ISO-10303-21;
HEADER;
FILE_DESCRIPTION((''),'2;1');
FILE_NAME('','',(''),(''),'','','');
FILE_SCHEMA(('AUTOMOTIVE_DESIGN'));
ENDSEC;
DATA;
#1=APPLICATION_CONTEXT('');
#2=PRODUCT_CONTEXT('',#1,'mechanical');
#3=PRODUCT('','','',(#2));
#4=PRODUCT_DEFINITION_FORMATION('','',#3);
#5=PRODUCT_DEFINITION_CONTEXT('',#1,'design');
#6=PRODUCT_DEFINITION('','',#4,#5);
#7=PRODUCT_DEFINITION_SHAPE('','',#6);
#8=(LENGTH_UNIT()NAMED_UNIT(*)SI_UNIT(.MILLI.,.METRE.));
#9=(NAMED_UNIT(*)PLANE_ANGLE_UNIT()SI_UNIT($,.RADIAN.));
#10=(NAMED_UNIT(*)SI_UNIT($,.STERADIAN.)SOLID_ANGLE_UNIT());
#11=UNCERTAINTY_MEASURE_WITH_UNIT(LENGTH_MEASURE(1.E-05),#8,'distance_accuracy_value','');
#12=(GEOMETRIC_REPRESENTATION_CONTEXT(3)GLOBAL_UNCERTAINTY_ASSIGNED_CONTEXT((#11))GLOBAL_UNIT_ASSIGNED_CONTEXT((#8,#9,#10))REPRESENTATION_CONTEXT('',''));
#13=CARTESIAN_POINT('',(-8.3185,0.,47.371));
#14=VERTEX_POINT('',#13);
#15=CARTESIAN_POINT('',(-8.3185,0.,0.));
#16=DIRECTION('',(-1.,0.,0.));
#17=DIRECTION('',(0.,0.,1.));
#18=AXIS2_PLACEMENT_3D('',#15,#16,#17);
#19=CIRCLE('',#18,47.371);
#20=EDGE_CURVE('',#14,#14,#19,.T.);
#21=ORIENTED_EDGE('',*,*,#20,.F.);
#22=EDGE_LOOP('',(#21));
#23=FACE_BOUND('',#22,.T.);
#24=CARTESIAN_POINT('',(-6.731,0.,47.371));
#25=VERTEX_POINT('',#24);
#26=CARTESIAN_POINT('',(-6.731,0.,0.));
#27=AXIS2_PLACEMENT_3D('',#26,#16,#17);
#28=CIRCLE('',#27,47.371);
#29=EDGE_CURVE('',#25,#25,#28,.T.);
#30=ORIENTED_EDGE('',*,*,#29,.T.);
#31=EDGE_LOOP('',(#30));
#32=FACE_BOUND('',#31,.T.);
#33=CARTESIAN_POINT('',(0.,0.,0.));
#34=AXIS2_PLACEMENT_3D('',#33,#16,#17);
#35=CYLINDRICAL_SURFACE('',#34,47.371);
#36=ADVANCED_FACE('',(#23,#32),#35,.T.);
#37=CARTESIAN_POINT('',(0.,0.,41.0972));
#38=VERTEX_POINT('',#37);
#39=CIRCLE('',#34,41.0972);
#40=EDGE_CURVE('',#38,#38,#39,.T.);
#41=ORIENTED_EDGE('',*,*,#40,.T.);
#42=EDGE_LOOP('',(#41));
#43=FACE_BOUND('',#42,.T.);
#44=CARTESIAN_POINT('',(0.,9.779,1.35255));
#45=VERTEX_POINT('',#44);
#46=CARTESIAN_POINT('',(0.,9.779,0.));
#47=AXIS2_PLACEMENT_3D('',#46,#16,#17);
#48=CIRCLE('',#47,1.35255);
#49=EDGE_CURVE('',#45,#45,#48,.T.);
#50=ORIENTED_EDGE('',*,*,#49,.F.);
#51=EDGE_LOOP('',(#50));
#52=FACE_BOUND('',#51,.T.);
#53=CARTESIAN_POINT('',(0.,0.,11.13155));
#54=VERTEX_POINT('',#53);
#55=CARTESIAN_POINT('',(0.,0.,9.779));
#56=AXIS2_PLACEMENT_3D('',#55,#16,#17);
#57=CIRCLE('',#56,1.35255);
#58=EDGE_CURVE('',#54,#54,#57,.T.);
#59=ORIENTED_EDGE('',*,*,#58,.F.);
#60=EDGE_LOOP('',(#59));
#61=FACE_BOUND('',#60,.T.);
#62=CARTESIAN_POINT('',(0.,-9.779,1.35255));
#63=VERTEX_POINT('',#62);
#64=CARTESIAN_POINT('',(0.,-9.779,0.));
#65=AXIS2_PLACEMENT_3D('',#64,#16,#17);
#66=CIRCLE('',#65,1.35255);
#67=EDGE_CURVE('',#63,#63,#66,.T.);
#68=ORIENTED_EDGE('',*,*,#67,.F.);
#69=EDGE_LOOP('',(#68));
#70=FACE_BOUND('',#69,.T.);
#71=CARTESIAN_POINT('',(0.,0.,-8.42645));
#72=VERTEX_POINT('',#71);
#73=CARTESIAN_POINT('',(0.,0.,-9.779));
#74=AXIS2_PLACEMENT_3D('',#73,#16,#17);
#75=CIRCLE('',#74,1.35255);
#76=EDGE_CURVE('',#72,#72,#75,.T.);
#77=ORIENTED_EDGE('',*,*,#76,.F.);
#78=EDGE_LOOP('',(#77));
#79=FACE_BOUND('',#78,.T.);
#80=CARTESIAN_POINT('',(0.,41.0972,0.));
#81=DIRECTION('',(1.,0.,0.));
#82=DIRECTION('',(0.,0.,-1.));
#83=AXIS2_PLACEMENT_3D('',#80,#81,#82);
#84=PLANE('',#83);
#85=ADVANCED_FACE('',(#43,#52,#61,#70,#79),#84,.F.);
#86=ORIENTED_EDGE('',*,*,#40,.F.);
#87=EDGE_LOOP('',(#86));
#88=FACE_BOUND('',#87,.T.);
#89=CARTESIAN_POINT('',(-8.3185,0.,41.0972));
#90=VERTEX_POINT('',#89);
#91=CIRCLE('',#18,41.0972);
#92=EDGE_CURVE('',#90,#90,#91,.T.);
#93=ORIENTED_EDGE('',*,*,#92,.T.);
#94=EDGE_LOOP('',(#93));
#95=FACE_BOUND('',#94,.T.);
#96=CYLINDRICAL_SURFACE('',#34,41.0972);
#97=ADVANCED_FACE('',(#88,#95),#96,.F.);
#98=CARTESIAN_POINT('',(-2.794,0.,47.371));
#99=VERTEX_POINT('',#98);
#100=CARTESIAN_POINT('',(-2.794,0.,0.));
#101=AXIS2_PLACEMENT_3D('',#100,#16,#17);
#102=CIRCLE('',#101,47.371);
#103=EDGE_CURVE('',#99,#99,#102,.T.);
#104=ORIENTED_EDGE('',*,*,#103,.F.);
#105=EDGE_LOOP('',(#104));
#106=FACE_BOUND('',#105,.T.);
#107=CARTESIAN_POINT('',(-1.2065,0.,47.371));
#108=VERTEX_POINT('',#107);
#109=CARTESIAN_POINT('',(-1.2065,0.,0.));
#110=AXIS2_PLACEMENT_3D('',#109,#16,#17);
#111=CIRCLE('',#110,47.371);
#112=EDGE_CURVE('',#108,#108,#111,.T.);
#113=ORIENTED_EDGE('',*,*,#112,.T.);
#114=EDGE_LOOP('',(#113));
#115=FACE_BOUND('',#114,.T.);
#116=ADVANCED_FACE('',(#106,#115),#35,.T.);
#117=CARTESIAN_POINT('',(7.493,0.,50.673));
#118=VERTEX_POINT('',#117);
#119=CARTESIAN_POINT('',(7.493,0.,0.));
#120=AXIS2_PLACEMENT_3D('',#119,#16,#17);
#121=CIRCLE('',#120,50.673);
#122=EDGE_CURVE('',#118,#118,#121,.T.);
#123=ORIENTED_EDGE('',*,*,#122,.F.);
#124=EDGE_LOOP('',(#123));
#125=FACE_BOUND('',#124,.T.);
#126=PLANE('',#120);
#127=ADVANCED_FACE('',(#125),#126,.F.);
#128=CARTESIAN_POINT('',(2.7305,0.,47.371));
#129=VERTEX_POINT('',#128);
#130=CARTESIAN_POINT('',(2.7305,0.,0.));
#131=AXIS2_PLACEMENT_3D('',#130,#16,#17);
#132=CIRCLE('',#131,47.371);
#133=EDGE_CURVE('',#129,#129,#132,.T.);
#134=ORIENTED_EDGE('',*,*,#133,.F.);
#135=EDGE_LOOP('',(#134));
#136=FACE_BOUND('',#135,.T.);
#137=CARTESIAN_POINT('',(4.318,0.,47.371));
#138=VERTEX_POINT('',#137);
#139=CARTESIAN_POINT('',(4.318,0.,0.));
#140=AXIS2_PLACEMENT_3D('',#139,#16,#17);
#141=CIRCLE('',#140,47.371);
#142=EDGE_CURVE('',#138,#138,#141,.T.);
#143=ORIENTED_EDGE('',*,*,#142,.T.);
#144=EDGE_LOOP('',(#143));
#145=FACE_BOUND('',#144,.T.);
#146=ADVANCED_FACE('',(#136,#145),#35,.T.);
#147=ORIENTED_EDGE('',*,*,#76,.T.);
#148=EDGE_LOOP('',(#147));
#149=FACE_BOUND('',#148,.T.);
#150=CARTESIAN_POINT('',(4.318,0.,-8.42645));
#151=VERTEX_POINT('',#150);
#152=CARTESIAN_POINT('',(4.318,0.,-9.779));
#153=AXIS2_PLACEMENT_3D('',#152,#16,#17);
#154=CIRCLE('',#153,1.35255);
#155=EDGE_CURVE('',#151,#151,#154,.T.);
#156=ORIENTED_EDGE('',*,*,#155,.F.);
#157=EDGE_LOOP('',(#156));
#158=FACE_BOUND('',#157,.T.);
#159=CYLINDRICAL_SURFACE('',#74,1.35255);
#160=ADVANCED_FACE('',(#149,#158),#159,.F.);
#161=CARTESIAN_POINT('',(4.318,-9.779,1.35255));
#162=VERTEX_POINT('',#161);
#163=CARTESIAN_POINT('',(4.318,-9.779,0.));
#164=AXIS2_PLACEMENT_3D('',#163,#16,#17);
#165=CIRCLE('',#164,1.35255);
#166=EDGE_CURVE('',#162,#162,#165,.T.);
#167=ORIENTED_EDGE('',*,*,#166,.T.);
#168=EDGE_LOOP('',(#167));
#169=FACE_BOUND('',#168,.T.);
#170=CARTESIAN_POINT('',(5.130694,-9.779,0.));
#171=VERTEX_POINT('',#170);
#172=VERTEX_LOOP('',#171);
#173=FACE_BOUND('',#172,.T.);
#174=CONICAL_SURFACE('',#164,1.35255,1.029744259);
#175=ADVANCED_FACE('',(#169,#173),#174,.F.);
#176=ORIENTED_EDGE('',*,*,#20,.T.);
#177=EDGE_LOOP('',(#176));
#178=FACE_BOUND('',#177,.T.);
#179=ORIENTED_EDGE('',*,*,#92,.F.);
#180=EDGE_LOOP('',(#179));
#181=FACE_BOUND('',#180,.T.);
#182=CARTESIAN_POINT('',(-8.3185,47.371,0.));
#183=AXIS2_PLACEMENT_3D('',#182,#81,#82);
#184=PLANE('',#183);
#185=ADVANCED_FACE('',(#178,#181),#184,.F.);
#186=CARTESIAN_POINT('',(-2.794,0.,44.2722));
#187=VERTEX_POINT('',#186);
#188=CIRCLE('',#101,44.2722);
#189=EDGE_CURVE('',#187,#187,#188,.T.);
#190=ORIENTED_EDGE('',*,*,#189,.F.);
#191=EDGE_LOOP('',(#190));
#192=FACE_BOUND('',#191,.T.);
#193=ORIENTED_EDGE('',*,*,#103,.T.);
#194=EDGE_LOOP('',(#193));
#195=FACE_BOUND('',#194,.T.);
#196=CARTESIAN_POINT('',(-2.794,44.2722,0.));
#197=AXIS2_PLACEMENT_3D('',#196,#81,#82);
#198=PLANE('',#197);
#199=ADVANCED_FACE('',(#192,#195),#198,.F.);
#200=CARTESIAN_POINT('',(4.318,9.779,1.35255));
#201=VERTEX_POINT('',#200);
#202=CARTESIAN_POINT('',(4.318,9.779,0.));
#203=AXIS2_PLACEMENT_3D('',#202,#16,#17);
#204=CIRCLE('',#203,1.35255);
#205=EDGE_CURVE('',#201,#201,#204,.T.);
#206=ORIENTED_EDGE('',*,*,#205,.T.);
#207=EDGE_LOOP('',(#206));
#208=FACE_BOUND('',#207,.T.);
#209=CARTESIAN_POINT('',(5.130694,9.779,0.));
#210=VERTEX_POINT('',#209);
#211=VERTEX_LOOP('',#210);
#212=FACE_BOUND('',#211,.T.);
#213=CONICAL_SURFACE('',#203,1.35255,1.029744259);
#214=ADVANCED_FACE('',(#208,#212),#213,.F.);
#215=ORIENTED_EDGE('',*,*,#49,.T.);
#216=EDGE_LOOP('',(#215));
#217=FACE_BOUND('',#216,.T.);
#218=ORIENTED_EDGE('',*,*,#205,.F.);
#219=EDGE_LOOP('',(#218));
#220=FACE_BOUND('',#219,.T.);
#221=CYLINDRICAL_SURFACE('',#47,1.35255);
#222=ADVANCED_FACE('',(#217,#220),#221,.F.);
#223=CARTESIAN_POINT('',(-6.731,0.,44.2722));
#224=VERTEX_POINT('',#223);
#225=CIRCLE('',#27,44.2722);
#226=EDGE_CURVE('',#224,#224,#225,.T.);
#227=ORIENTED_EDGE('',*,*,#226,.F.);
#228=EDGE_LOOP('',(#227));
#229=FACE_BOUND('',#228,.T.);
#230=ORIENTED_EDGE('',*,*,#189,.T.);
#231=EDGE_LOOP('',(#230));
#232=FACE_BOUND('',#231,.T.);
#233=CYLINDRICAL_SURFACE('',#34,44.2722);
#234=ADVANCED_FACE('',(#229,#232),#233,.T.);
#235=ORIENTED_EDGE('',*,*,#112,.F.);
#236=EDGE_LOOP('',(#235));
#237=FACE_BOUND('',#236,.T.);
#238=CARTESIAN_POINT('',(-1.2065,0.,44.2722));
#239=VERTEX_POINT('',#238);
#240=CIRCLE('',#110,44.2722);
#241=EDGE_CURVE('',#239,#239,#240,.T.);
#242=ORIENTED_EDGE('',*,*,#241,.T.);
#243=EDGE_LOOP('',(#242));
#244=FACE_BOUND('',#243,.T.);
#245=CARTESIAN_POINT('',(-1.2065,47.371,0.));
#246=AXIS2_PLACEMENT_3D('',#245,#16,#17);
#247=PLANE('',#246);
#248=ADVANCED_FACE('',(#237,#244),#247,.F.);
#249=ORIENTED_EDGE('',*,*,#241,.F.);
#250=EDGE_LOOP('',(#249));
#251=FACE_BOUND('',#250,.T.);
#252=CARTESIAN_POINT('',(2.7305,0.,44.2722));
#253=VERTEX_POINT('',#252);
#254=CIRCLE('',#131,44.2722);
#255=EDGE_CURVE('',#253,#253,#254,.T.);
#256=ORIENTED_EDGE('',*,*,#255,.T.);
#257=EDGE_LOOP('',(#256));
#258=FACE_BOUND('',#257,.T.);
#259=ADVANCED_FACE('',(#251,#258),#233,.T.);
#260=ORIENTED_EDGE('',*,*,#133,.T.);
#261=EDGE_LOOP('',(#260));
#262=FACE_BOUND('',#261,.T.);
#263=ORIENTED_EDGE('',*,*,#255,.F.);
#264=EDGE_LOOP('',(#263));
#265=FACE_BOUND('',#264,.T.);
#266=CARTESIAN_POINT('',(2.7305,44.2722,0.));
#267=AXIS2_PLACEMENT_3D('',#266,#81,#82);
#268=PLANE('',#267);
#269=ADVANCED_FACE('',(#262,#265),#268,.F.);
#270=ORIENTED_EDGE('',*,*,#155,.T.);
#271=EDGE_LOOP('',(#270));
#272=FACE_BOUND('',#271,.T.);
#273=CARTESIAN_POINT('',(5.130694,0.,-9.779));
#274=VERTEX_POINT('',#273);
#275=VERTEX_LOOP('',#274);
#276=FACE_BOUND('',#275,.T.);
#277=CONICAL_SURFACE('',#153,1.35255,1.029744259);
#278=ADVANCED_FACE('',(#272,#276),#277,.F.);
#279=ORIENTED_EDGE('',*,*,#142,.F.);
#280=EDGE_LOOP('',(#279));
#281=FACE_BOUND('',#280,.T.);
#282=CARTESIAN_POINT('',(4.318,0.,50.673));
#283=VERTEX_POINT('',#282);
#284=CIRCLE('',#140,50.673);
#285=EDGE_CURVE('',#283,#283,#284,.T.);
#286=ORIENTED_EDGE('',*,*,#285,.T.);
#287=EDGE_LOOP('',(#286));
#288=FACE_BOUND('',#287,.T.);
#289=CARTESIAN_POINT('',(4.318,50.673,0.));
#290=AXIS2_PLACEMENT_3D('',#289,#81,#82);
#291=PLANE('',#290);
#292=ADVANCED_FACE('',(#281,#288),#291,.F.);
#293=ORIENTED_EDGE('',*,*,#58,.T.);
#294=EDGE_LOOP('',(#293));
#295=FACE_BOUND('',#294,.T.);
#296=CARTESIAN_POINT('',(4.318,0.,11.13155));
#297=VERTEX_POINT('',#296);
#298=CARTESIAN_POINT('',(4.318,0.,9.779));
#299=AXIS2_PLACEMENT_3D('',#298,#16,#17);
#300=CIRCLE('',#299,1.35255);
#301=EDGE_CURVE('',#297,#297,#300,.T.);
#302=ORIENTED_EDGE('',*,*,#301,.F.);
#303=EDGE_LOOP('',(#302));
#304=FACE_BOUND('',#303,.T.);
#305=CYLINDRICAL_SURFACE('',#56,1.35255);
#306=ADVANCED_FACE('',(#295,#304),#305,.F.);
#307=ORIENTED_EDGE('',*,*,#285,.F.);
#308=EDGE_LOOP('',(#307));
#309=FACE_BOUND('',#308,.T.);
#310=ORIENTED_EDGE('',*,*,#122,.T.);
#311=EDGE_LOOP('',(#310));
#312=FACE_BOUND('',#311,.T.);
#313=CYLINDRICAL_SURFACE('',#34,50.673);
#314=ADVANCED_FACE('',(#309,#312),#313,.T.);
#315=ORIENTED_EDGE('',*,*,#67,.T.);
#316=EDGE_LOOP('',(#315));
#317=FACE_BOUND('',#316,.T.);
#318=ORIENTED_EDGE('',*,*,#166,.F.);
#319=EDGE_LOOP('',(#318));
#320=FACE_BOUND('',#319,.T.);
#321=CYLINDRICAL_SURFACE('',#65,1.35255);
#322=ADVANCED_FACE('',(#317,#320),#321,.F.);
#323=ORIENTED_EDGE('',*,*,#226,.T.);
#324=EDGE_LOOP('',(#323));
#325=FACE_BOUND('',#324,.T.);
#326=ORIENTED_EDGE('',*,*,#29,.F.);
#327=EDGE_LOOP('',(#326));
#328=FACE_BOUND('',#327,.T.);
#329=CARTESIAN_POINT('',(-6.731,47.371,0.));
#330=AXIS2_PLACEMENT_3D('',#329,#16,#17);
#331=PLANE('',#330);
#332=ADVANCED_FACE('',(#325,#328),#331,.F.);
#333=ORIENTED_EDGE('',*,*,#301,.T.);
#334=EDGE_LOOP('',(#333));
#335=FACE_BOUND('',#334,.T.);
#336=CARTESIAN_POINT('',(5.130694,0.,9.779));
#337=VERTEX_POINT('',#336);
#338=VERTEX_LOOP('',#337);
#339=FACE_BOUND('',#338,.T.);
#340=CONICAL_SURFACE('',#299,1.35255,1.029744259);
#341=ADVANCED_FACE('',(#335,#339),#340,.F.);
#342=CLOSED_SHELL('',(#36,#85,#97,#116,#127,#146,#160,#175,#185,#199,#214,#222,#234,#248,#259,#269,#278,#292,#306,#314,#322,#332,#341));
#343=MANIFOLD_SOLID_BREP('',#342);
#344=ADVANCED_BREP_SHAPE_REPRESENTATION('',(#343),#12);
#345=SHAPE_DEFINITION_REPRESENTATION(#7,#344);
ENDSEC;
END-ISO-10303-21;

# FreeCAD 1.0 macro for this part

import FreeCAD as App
import Part
import Sketcher

V = App.Vector
Q = App.Units.Quantity

doc = App.newDocument("Part")
body = doc.addObject("PartDesign::Body", "Body")

# Sketch on XY plane
sketch1 = body.newObject("Sketcher::SketchObject", "Sketch")
sketch1.AttachmentSupport = (doc.getObject("XY_Plane"), [""])
sketch1.MapMode = "FlatFace"
sketch1.addGeometry([
    Part.LineSegment(V(4.3, 50.7, 0), V(4.3, 47.4, 0)),  # 0
    Part.LineSegment(V(4.3, 47.4, 0), V(2.7, 47.4, 0)),  # 1
    Part.LineSegment(V(2.7, 47.4, 0), V(2.7, 44.3, 0)),  # 2
    Part.LineSegment(V(2.7, 44.3, 0), V(-1.2, 44.3, 0)),  # 3
    Part.LineSegment(V(-1.2, 44.3, 0), V(-1.2, 47.4, 0)),  # 4
    Part.LineSegment(V(-1.2, 47.4, 0), V(-2.8, 47.4, 0)),  # 5
    Part.LineSegment(V(-2.8, 47.4, 0), V(-2.8, 44.3, 0)),  # 6
    Part.LineSegment(V(-2.8, 44.3, 0), V(-6.7, 44.3, 0)),  # 7
    Part.LineSegment(V(-6.7, 44.3, 0), V(-6.7, 47.4, 0)),  # 8
    Part.LineSegment(V(-6.7, 47.4, 0), V(-8.3, 47.4, 0)),  # 9
    Part.LineSegment(V(-8.3, 47.4, 0), V(-8.3, 41.1, 0)),  # 10
    Part.LineSegment(V(-8.3, 41.1, 0), V(0, 41.1, 0)),  # 11
    Part.LineSegment(V(0, 41.1, 0), V(0, 0, 0)),  # 12
    Part.LineSegment(V(0, 0, 0), V(7.5, 0, 0)),  # 13
    Part.LineSegment(V(7.5, 0, 0), V(7.5, 50.7, 0)),  # 14
    Part.LineSegment(V(7.5, 50.7, 0), V(4.3, 50.7, 0)),  # 15
], False)
sketch1.addConstraint([
    Sketcher.Constraint("Coincident", 0, 2, 1, 1),
    Sketcher.Constraint("Coincident", 1, 2, 2, 1),
    Sketcher.Constraint("Coincident", 2, 2, 3, 1),
    Sketcher.Constraint("Coincident", 3, 2, 4, 1),
    Sketcher.Constraint("Coincident", 4, 2, 5, 1),
    Sketcher.Constraint("Coincident", 5, 2, 6, 1),
    Sketcher.Constraint("Coincident", 6, 2, 7, 1),
    Sketcher.Constraint("Coincident", 7, 2, 8, 1),
    Sketcher.Constraint("Coincident", 8, 2, 9, 1),
    Sketcher.Constraint("Coincident", 9, 2, 10, 1),
    Sketcher.Constraint("Coincident", 10, 2, 11, 1),
    Sketcher.Constraint("Coincident", 11, 2, 12, 1),
    Sketcher.Constraint("Coincident", 12, 2, 13, 1),
    Sketcher.Constraint("Coincident", 13, 2, 14, 1),
    Sketcher.Constraint("Coincident", 14, 2, 15, 1),
    Sketcher.Constraint("Coincident", 15, 2, 0, 1),
    Sketcher.Constraint("Vertical", 0),
    Sketcher.Constraint("Horizontal", 1),
    Sketcher.Constraint("Vertical", 2),
    Sketcher.Constraint("Horizontal", 3),
    Sketcher.Constraint("Vertical", 4),
    Sketcher.Constraint("Horizontal", 5),
    Sketcher.Constraint("Vertical", 6),
    Sketcher.Constraint("Horizontal", 7),
    Sketcher.Constraint("Vertical", 8),
    Sketcher.Constraint("Horizontal", 9),
    Sketcher.Constraint("Vertical", 10),
    Sketcher.Constraint("Horizontal", 11),
    Sketcher.Constraint("Vertical", 12),
    Sketcher.Constraint("Horizontal", 13),
    Sketcher.Constraint("Vertical", 14),
    Sketcher.Constraint("Horizontal", 15),
    Sketcher.Constraint("Coincident", 12, 2, -1, 1),
    Sketcher.Constraint("Horizontal", 1, 2, 4, 2),
    Sketcher.Constraint("Horizontal", 3, 2, 6, 2),
    Sketcher.Constraint("Horizontal", 5, 2, 8, 2),
    Sketcher.Constraint("Equal", 1, 5),
    Sketcher.Constraint("Equal", 3, 7),
    Sketcher.Constraint("Equal", 5, 9),
    Sketcher.Constraint("DistanceY", 0, 2, 0, 1, Q("0.13 in")),
    Sketcher.Constraint("DistanceX", 1, 2, 1, 1, Q("0.0625 in")),
    Sketcher.Constraint("DistanceX", 3, 2, 3, 1, Q("0.155 in")),
    Sketcher.Constraint("DistanceX", 13, 1, 13, 2, Q("0.295 in")),
    Sketcher.Constraint("DistanceX", 15, 2, 15, 1, Q("0.125 in")),
    Sketcher.Constraint("DistanceY", 2, 2, 2, 1, Q("0.122 in")),
    Sketcher.Constraint("DistanceY", 10, 2, 10, 1, Q("0.247 in")),
    Sketcher.Constraint("DistanceY", 12, 2, 12, 1, Q("1.618 in")),
])
revolution = body.newObject("PartDesign::Revolution", "Revolution")
revolution.Profile = sketch1
revolution.ReferenceAxis = (sketch1, ["H_Axis"])
revolution.Angle = 360

# Sketch on YZ plane
sketch2 = body.newObject("Sketcher::SketchObject", "Sketch001")
sketch2.AttachmentSupport = (doc.getObject("YZ_Plane"), [""])
sketch2.MapMode = "FlatFace"
sketch2.addGeometry([
    Part.Circle(V(9.8, 0, 0), V(0, 0, 1), 1.4),
    Part.Circle(V(-9.8, 0, 0), V(0, 0, 1), 1.4),
    Part.Circle(V(0, -9.8, 0), V(0, 0, 1), 1.4),
    Part.Circle(V(0, 9.8, 0), V(0, 0, 1), 1.4),
], False)
sketch2.addConstraint([
    Sketcher.Constraint("Equal", 0, 1),
    Sketcher.Constraint("Equal", 1, 2),
    Sketcher.Constraint("Equal", 2, 3),
    Sketcher.Constraint("Symmetric", 0, 3, 1, 3, -1, 1),
    Sketcher.Constraint("Symmetric", 2, 3, 3, 3, -1, 1),
    Sketcher.Constraint("PointOnObject", 0, 3, -1),
    Sketcher.Constraint("PointOnObject", 2, 3, -2),
    Sketcher.Constraint("Diameter", 0, Q("0.1065 in")),
    Sketcher.Constraint("DistanceX", 1, 3, 0, 3, Q("0.77 in")),
    Sketcher.Constraint("DistanceY", 2, 3, 3, 3, Q("0.77 in")),
])
doc.recompute()
hole = body.newObject("PartDesign::Hole", "Hole")
hole.Profile = sketch2
hole.ThreadType = "None"
hole.Diameter = Q("0.1065 in")
hole.DepthType = "Dimension"
hole.Depth = Q("0.17 in")
hole.DrillPoint = "Angled"
hole.DrillPointAngle = 118
hole.Reversed = True

doc.recompute()
